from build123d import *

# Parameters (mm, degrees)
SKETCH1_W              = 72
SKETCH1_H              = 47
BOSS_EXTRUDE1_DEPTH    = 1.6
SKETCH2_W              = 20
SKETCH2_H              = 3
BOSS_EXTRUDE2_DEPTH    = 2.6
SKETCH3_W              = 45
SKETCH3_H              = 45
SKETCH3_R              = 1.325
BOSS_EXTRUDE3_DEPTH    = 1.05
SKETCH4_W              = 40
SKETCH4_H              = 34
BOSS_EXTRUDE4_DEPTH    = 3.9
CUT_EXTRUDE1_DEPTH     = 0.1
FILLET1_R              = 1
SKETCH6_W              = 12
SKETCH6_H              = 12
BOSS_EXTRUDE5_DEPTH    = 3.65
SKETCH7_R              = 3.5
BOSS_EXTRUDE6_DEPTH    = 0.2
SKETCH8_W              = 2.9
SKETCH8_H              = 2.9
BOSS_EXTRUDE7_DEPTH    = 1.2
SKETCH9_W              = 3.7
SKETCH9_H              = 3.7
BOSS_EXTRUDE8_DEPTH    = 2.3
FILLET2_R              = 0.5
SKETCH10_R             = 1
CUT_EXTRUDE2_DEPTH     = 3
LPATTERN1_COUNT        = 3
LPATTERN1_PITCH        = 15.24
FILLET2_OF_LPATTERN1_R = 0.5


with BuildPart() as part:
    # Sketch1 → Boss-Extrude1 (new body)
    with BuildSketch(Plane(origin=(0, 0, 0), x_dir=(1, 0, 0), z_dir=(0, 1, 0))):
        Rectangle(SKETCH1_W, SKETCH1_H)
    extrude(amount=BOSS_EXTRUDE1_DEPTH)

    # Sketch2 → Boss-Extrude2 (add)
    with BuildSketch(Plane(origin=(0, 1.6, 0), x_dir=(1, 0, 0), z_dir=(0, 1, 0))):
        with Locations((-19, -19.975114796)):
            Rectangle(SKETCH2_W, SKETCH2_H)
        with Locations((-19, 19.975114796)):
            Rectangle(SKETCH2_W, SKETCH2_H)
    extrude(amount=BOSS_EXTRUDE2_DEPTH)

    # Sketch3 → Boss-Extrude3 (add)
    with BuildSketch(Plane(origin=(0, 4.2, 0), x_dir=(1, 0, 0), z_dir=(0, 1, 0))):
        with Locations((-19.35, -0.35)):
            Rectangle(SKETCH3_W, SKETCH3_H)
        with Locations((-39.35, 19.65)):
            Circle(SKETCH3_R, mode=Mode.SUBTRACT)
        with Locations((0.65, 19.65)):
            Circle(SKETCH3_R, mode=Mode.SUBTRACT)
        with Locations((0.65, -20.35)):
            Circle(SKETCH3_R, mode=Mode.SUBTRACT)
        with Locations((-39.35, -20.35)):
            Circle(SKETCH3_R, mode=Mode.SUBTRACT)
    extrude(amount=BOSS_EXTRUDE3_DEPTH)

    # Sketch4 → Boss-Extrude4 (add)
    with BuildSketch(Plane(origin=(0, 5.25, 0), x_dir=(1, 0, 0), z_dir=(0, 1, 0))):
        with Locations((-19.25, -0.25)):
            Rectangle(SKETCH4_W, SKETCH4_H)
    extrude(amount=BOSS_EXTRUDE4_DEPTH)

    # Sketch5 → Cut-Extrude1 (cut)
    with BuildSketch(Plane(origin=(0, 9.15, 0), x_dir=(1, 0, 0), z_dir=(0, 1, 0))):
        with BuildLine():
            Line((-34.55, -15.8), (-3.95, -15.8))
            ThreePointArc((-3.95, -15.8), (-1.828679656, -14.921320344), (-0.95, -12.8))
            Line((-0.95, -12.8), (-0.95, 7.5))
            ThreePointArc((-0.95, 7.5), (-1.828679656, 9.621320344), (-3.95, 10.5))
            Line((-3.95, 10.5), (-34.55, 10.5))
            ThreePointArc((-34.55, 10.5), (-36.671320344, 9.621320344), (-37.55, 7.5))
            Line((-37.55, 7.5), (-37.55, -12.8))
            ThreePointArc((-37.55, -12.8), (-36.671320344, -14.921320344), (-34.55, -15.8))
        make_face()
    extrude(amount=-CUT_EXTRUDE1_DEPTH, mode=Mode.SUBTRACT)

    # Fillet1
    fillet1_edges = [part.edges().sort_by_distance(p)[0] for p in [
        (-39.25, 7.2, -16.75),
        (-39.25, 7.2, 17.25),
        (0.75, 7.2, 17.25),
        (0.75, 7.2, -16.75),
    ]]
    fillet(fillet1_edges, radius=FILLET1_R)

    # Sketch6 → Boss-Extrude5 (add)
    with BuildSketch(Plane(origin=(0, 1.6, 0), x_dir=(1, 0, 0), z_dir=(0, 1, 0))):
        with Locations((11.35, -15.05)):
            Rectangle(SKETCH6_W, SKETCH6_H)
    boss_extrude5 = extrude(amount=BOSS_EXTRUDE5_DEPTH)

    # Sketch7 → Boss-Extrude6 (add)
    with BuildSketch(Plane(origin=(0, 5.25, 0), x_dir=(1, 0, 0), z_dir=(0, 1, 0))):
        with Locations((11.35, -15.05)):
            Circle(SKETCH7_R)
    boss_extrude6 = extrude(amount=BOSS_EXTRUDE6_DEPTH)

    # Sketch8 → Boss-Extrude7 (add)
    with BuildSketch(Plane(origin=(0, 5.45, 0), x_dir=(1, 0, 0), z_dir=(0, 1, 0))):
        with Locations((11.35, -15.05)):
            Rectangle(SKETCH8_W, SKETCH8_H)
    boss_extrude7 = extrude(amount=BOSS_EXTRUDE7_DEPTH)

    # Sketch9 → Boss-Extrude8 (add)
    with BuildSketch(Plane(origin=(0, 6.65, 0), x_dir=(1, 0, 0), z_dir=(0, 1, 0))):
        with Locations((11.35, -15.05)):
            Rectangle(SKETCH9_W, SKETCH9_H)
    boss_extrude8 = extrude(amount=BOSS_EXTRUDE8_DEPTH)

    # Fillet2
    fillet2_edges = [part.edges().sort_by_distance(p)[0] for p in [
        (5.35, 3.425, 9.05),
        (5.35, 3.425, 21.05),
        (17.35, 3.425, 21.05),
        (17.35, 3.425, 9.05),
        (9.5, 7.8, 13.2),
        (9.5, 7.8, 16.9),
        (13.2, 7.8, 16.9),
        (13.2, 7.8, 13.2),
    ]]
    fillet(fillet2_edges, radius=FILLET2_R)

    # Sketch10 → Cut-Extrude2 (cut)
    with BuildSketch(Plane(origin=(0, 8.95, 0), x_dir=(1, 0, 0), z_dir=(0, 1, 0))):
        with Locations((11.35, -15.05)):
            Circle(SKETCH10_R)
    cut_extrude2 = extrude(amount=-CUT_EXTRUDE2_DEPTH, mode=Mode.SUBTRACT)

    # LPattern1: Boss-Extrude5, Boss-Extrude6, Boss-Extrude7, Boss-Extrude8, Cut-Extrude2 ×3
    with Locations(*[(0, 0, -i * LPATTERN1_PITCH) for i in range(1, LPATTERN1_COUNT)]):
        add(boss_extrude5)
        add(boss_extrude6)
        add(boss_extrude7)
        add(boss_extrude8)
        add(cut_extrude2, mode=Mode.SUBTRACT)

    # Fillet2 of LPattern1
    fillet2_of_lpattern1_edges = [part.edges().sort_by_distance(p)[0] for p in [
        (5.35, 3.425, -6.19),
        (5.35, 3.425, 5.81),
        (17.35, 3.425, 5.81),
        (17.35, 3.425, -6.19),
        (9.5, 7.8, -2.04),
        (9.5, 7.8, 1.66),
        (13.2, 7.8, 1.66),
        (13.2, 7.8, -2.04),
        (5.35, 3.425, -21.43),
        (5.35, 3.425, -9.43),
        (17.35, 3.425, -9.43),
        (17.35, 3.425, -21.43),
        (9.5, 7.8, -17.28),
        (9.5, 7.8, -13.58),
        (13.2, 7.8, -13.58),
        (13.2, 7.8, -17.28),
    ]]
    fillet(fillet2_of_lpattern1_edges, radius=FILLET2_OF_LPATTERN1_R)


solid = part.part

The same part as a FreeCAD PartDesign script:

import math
import FreeCAD as App
import Part
import Sketcher
Q = App.Units.Quantity


def edges_at(feature, points):
    """Names of the edges that pass closest to the given points."""
    edges = feature.Shape.Edges
    near = lambda p: min(range(len(edges)), key=lambda i: edges[i].distToShape(Part.Vertex(*p))[0])
    return sorted({f"Edge{near(p) + 1}" for p in points})

doc = App.newDocument("Part")
body = doc.addObject("PartDesign::Body", "Body")

# Sketch on XZ plane
sketch1 = body.newObject("Sketcher::SketchObject", "Sketch")
sketch1.AttachmentSupport = (doc.getObject("XZ_Plane"), [""])
sketch1.MapMode = "FlatFace"
sketch1.addGeometry([
    Part.LineSegment(App.Vector(-36, -23.5, 0), App.Vector(-36, 23.5, 0)),
    Part.LineSegment(App.Vector(-36, 23.5, 0), App.Vector(36, 23.5, 0)),
    Part.LineSegment(App.Vector(36, 23.5, 0), App.Vector(36, -23.5, 0)),
    Part.LineSegment(App.Vector(36, -23.5, 0), App.Vector(-36, -23.5, 0)),
], False)
sketch1.addConstraint([
    Sketcher.Constraint("Coincident", 0, 2, 1, 1),
    Sketcher.Constraint("Coincident", 1, 2, 2, 1),
    Sketcher.Constraint("Coincident", 2, 2, 3, 1),
    Sketcher.Constraint("Coincident", 3, 2, 0, 1),
    Sketcher.Constraint("Vertical", 0),
    Sketcher.Constraint("Horizontal", 1),
    Sketcher.Constraint("Vertical", 2),
    Sketcher.Constraint("Horizontal", 3),
    Sketcher.Constraint("Symmetric", 0, 2, 2, 2, -1, 1),
    Sketcher.Constraint("DistanceX", 1, 1, 1, 2, Q("72 mm")),
    Sketcher.Constraint("DistanceY", 0, 1, 0, 2, Q("47 mm")),
])
pad1 = body.newObject("PartDesign::Pad", "Pad")
pad1.Profile = sketch1
pad1.Length = 1.6
pad1.Reversed = True

# Sketch on XZ plane
sketch2 = body.newObject("Sketcher::SketchObject", "Sketch001")
sketch2.AttachmentSupport = (doc.getObject("XZ_Plane"), [""])
sketch2.MapMode = "FlatFace"
sketch2.AttachmentOffset = App.Placement(App.Vector(0, 0, -1.6), App.Rotation())
sketch2.addGeometry([
    Part.LineSegment(App.Vector(-29, 18.475115, 0), App.Vector(-29, 21.475115, 0)),  # 0
    Part.LineSegment(App.Vector(-29, 21.475115, 0), App.Vector(-9, 21.475115, 0)),  # 1
    Part.LineSegment(App.Vector(-9, 21.475115, 0), App.Vector(-9, 18.475115, 0)),  # 2
    Part.LineSegment(App.Vector(-9, 18.475115, 0), App.Vector(-29, 18.475115, 0)),  # 3
    Part.LineSegment(App.Vector(-29, -21.475115, 0), App.Vector(-29, -18.475115, 0)),  # 4
    Part.LineSegment(App.Vector(-29, -18.475115, 0), App.Vector(-9, -18.475115, 0)),  # 5
    Part.LineSegment(App.Vector(-9, -18.475115, 0), App.Vector(-9, -21.475115, 0)),  # 6
    Part.LineSegment(App.Vector(-9, -21.475115, 0), App.Vector(-29, -21.475115, 0)),  # 7
], False)
sketch2.addConstraint([
    Sketcher.Constraint("Coincident", 0, 2, 1, 1),
    Sketcher.Constraint("Coincident", 1, 2, 2, 1),
    Sketcher.Constraint("Coincident", 2, 2, 3, 1),
    Sketcher.Constraint("Coincident", 3, 2, 0, 1),
    Sketcher.Constraint("Coincident", 4, 2, 5, 1),
    Sketcher.Constraint("Coincident", 5, 2, 6, 1),
    Sketcher.Constraint("Coincident", 6, 2, 7, 1),
    Sketcher.Constraint("Coincident", 7, 2, 4, 1),
    Sketcher.Constraint("Vertical", 0),
    Sketcher.Constraint("Horizontal", 1),
    Sketcher.Constraint("Vertical", 2),
    Sketcher.Constraint("Horizontal", 3),
    Sketcher.Constraint("Vertical", 4),
    Sketcher.Constraint("Horizontal", 5),
    Sketcher.Constraint("Vertical", 6),
    Sketcher.Constraint("Horizontal", 7),
    Sketcher.Constraint("Symmetric", 3, 2, 4, 2, -1),
    Sketcher.Constraint("Symmetric", 1, 2, 6, 2, -1),
    Sketcher.Constraint("DistanceX", 1, 1, 1, 2, Q("20 mm")),
    Sketcher.Constraint("DistanceY", 0, 1, 0, 2, Q("3 mm")),
    Sketcher.Constraint("DistanceX", 0, 2, -1, 1, Q("29 mm")),
    Sketcher.Constraint("DistanceY", 4, 2, 3, 2, Q("36.95023 mm")),
])
pad2 = body.newObject("PartDesign::Pad", "Pad001")
pad2.Profile = sketch2
pad2.Length = 2.6
pad2.Reversed = True

# Sketch on XZ plane
sketch3 = body.newObject("Sketcher::SketchObject", "Sketch002")
sketch3.AttachmentSupport = (doc.getObject("XZ_Plane"), [""])
sketch3.MapMode = "FlatFace"
sketch3.AttachmentOffset = App.Placement(App.Vector(0, 0, -4.2), App.Rotation())
sketch3.addGeometry([
    Part.LineSegment(App.Vector(-41.85, -22.15, 0), App.Vector(-41.85, 22.85, 0)),  # 0
    Part.LineSegment(App.Vector(-41.85, 22.85, 0), App.Vector(3.15, 22.85, 0)),  # 1
    Part.LineSegment(App.Vector(3.15, 22.85, 0), App.Vector(3.15, -22.15, 0)),  # 2
    Part.LineSegment(App.Vector(3.15, -22.15, 0), App.Vector(-41.85, -22.15, 0)),  # 3
    Part.Circle(App.Vector(-39.35, 20.35, 0), App.Vector(0, 0, 1), 1.325),  # 4
    Part.Circle(App.Vector(0.65, 20.35, 0), App.Vector(0, 0, 1), 1.325),  # 5
    Part.Circle(App.Vector(-39.35, -19.65, 0), App.Vector(0, 0, 1), 1.325),  # 6
    Part.Circle(App.Vector(0.65, -19.65, 0), App.Vector(0, 0, 1), 1.325),  # 7
], False)
sketch3.addConstraint([
    Sketcher.Constraint("Coincident", 0, 2, 1, 1),
    Sketcher.Constraint("Coincident", 1, 2, 2, 1),
    Sketcher.Constraint("Coincident", 2, 2, 3, 1),
    Sketcher.Constraint("Coincident", 3, 2, 0, 1),
    Sketcher.Constraint("Vertical", 0),
    Sketcher.Constraint("Horizontal", 1),
    Sketcher.Constraint("Vertical", 2),
    Sketcher.Constraint("Horizontal", 3),
    Sketcher.Constraint("Equal", 4, 5),
    Sketcher.Constraint("Equal", 5, 6),
    Sketcher.Constraint("Equal", 6, 7),
    Sketcher.Constraint("Horizontal", 4, 3, 5, 3),
    Sketcher.Constraint("Horizontal", 6, 3, 7, 3),
    Sketcher.Constraint("Vertical", 4, 3, 6, 3),
    Sketcher.Constraint("Vertical", 5, 3, 7, 3),
    Sketcher.Constraint("Equal", 3, 0),
    Sketcher.Constraint("Diameter", 4, Q("2.65 mm")),
    Sketcher.Constraint("DistanceX", 1, 1, 1, 2, Q("45 mm")),
    Sketcher.Constraint("DistanceX", 4, 3, 5, 3, Q("40 mm")),
    Sketcher.Constraint("DistanceY", 6, 3, 4, 3, Q("40 mm")),
    Sketcher.Constraint("DistanceX", 0, 2, 4, 3, Q("2.5 mm")),
    Sketcher.Constraint("DistanceY", 4, 3, 0, 2, Q("2.5 mm")),
    Sketcher.Constraint("DistanceX", 4, 3, -1, 1, Q("39.35 mm")),
    Sketcher.Constraint("DistanceY", -1, 1, 4, 3, Q("20.35 mm")),
])
pad3 = body.newObject("PartDesign::Pad", "Pad002")
pad3.Profile = sketch3
pad3.Length = 1.05
pad3.Reversed = True

# Sketch on XZ plane
sketch4 = body.newObject("Sketcher::SketchObject", "Sketch003")
sketch4.AttachmentSupport = (doc.getObject("XZ_Plane"), [""])
sketch4.MapMode = "FlatFace"
sketch4.AttachmentOffset = App.Placement(App.Vector(0, 0, -5.25), App.Rotation())
sketch4.addGeometry([
    Part.LineSegment(App.Vector(-39.25, -16.75, 0), App.Vector(-39.25, 17.25, 0)),
    Part.LineSegment(App.Vector(-39.25, 17.25, 0), App.Vector(0.75, 17.25, 0)),
    Part.LineSegment(App.Vector(0.75, 17.25, 0), App.Vector(0.75, -16.75, 0)),
    Part.LineSegment(App.Vector(0.75, -16.75, 0), App.Vector(-39.25, -16.75, 0)),
], False)
sketch4.addConstraint([
    Sketcher.Constraint("Coincident", 0, 2, 1, 1),
    Sketcher.Constraint("Coincident", 1, 2, 2, 1),
    Sketcher.Constraint("Coincident", 2, 2, 3, 1),
    Sketcher.Constraint("Coincident", 3, 2, 0, 1),
    Sketcher.Constraint("Vertical", 0),
    Sketcher.Constraint("Horizontal", 1),
    Sketcher.Constraint("Vertical", 2),
    Sketcher.Constraint("Horizontal", 3),
    Sketcher.Constraint("DistanceX", 1, 1, 1, 2, Q("40 mm")),
    Sketcher.Constraint("DistanceY", 0, 1, 0, 2, Q("34 mm")),
    Sketcher.Constraint("DistanceX", 0, 2, -1, 1, Q("39.25 mm")),
    Sketcher.Constraint("DistanceY", -1, 1, 0, 2, Q("17.25 mm")),
])
pad4 = body.newObject("PartDesign::Pad", "Pad003")
pad4.Profile = sketch4
pad4.Length = 3.9
pad4.Reversed = True

# Sketch on XZ plane
sketch5 = body.newObject("Sketcher::SketchObject", "Sketch004")
sketch5.AttachmentSupport = (doc.getObject("XZ_Plane"), [""])
sketch5.MapMode = "FlatFace"
sketch5.AttachmentOffset = App.Placement(App.Vector(0, 0, -9.15), App.Rotation())
sketch5.addGeometry([
    Part.LineSegment(App.Vector(-34.55, 15.8, 0), App.Vector(-3.95, 15.8, 0)),  # 0
    Part.ArcOfCircle(Part.Circle(App.Vector(-3.95, 12.8, 0), App.Vector(0, 0, 1), 3), math.radians(0), math.radians(90)),  # 1
    Part.LineSegment(App.Vector(-0.95, 12.8, 0), App.Vector(-0.95, -7.5, 0)),  # 2
    Part.ArcOfCircle(Part.Circle(App.Vector(-3.95, -7.5, 0), App.Vector(0, 0, 1), 3), math.radians(-90), math.radians(0)),  # 3
    Part.LineSegment(App.Vector(-3.95, -10.5, 0), App.Vector(-34.55, -10.5, 0)),  # 4
    Part.ArcOfCircle(Part.Circle(App.Vector(-34.55, -7.5, 0), App.Vector(0, 0, 1), 3), math.radians(180), math.radians(270)),  # 5
    Part.LineSegment(App.Vector(-37.55, -7.5, 0), App.Vector(-37.55, 12.8, 0)),  # 6
    Part.ArcOfCircle(Part.Circle(App.Vector(-34.55, 12.8, 0), App.Vector(0, 0, 1), 3), math.radians(90), math.radians(180)),  # 7
], False)
sketch5.addConstraint([
    Sketcher.Constraint("Tangent", 0, 2, 1, 2),
    Sketcher.Constraint("Tangent", 1, 1, 2, 1),
    Sketcher.Constraint("Tangent", 2, 2, 3, 2),
    Sketcher.Constraint("Tangent", 3, 1, 4, 1),
    Sketcher.Constraint("Tangent", 4, 2, 5, 2),
    Sketcher.Constraint("Tangent", 5, 1, 6, 1),
    Sketcher.Constraint("Tangent", 6, 2, 7, 2),
    Sketcher.Constraint("Tangent", 7, 1, 0, 1),
    Sketcher.Constraint("Horizontal", 0),
    Sketcher.Constraint("Vertical", 2),
    Sketcher.Constraint("Horizontal", 4),
    Sketcher.Constraint("Vertical", 6),
    Sketcher.Constraint("Equal", 1, 3),
    Sketcher.Constraint("Equal", 3, 5),
    Sketcher.Constraint("Equal", 5, 7),
    Sketcher.Constraint("Radius", 1, Q("3 mm")),
    Sketcher.Constraint("DistanceX", 0, 1, 0, 2, Q("30.6 mm")),
    Sketcher.Constraint("DistanceY", 2, 2, 2, 1, Q("20.3 mm")),
    Sketcher.Constraint("DistanceY", -1, 1, 1, 3, Q("12.8 mm")),
    Sketcher.Constraint("DistanceX", 1, 3, -1, 1, Q("3.95 mm")),
])
pocket1 = body.newObject("PartDesign::Pocket", "Pocket")
pocket1.Profile = sketch5
pocket1.Length = 0.1
pocket1.Reversed = True
doc.recompute()

fillet = body.newObject("PartDesign::Fillet", "Fillet")
fillet.Base = (pocket1, edges_at(pocket1, [
    (-39.25, 7.2, -16.75),
    (-39.25, 7.2, 17.25),
    (0.75, 7.2, 17.25),
    (0.75, 7.2, -16.75),
]))
fillet.Radius = 1

# Sketch on XZ plane
sketch6 = body.newObject("Sketcher::SketchObject", "Sketch005")
sketch6.AttachmentSupport = (doc.getObject("XZ_Plane"), [""])
sketch6.MapMode = "FlatFace"
sketch6.AttachmentOffset = App.Placement(App.Vector(0, 0, -1.6), App.Rotation())
sketch6.addGeometry([
    Part.LineSegment(App.Vector(5.35, 9.05, 0), App.Vector(5.35, 21.05, 0)),
    Part.LineSegment(App.Vector(5.35, 21.05, 0), App.Vector(17.35, 21.05, 0)),
    Part.LineSegment(App.Vector(17.35, 21.05, 0), App.Vector(17.35, 9.05, 0)),
    Part.LineSegment(App.Vector(17.35, 9.05, 0), App.Vector(5.35, 9.05, 0)),
], False)
sketch6.addConstraint([
    Sketcher.Constraint("Coincident", 0, 2, 1, 1),
    Sketcher.Constraint("Coincident", 1, 2, 2, 1),
    Sketcher.Constraint("Coincident", 2, 2, 3, 1),
    Sketcher.Constraint("Coincident", 3, 2, 0, 1),
    Sketcher.Constraint("Vertical", 0),
    Sketcher.Constraint("Horizontal", 1),
    Sketcher.Constraint("Vertical", 2),
    Sketcher.Constraint("Horizontal", 3),
    Sketcher.Constraint("Equal", 3, 0),
    Sketcher.Constraint("DistanceX", 1, 1, 1, 2, Q("12 mm")),
    Sketcher.Constraint("DistanceX", -1, 1, 0, 2, Q("5.35 mm")),
    Sketcher.Constraint("DistanceY", -1, 1, 0, 2, Q("21.05 mm")),
])
pad5 = body.newObject("PartDesign::Pad", "Pad004")
pad5.Profile = sketch6
pad5.Length = 3.65
pad5.Reversed = True

# Sketch on XZ plane
sketch7 = body.newObject("Sketcher::SketchObject", "Sketch006")
sketch7.AttachmentSupport = (doc.getObject("XZ_Plane"), [""])
sketch7.MapMode = "FlatFace"
sketch7.AttachmentOffset = App.Placement(App.Vector(0, 0, -5.25), App.Rotation())
sketch7.addGeometry(Part.Circle(App.Vector(11.35, 15.05, 0), App.Vector(0, 0, 1), 3.5), False)
sketch7.addConstraint([
    Sketcher.Constraint("Diameter", 0, Q("7 mm")),
    Sketcher.Constraint("DistanceX", -1, 1, 0, 3, Q("11.35 mm")),
    Sketcher.Constraint("DistanceY", -1, 1, 0, 3, Q("15.05 mm")),
])
pad6 = body.newObject("PartDesign::Pad", "Pad005")
pad6.Profile = sketch7
pad6.Length = 0.2
pad6.Reversed = True

# Sketch on XZ plane
sketch8 = body.newObject("Sketcher::SketchObject", "Sketch007")
sketch8.AttachmentSupport = (doc.getObject("XZ_Plane"), [""])
sketch8.MapMode = "FlatFace"
sketch8.AttachmentOffset = App.Placement(App.Vector(0, 0, -5.45), App.Rotation())
sketch8.addGeometry([
    Part.LineSegment(App.Vector(9.9, 13.6, 0), App.Vector(9.9, 16.5, 0)),
    Part.LineSegment(App.Vector(9.9, 16.5, 0), App.Vector(12.8, 16.5, 0)),
    Part.LineSegment(App.Vector(12.8, 16.5, 0), App.Vector(12.8, 13.6, 0)),
    Part.LineSegment(App.Vector(12.8, 13.6, 0), App.Vector(9.9, 13.6, 0)),
], False)
sketch8.addConstraint([
    Sketcher.Constraint("Coincident", 0, 2, 1, 1),
    Sketcher.Constraint("Coincident", 1, 2, 2, 1),
    Sketcher.Constraint("Coincident", 2, 2, 3, 1),
    Sketcher.Constraint("Coincident", 3, 2, 0, 1),
    Sketcher.Constraint("Vertical", 0),
    Sketcher.Constraint("Horizontal", 1),
    Sketcher.Constraint("Vertical", 2),
    Sketcher.Constraint("Horizontal", 3),
    Sketcher.Constraint("Equal", 3, 0),
    Sketcher.Constraint("DistanceX", 1, 1, 1, 2, Q("2.9 mm")),
    Sketcher.Constraint("DistanceX", -1, 1, 0, 2, Q("9.9 mm")),
    Sketcher.Constraint("DistanceY", -1, 1, 0, 2, Q("16.5 mm")),
])
pad7 = body.newObject("PartDesign::Pad", "Pad006")
pad7.Profile = sketch8
pad7.Length = 1.2
pad7.Reversed = True

# Sketch on XZ plane
sketch9 = body.newObject("Sketcher::SketchObject", "Sketch008")
sketch9.AttachmentSupport = (doc.getObject("XZ_Plane"), [""])
sketch9.MapMode = "FlatFace"
sketch9.AttachmentOffset = App.Placement(App.Vector(0, 0, -6.65), App.Rotation())
sketch9.addGeometry([
    Part.LineSegment(App.Vector(9.5, 13.2, 0), App.Vector(9.5, 16.9, 0)),
    Part.LineSegment(App.Vector(9.5, 16.9, 0), App.Vector(13.2, 16.9, 0)),
    Part.LineSegment(App.Vector(13.2, 16.9, 0), App.Vector(13.2, 13.2, 0)),
    Part.LineSegment(App.Vector(13.2, 13.2, 0), App.Vector(9.5, 13.2, 0)),
], False)
sketch9.addConstraint([
    Sketcher.Constraint("Coincident", 0, 2, 1, 1),
    Sketcher.Constraint("Coincident", 1, 2, 2, 1),
    Sketcher.Constraint("Coincident", 2, 2, 3, 1),
    Sketcher.Constraint("Coincident", 3, 2, 0, 1),
    Sketcher.Constraint("Vertical", 0),
    Sketcher.Constraint("Horizontal", 1),
    Sketcher.Constraint("Vertical", 2),
    Sketcher.Constraint("Horizontal", 3),
    Sketcher.Constraint("Equal", 3, 0),
    Sketcher.Constraint("DistanceX", 1, 1, 1, 2, Q("3.7 mm")),
    Sketcher.Constraint("DistanceX", -1, 1, 0, 2, Q("9.5 mm")),
    Sketcher.Constraint("DistanceY", -1, 1, 0, 2, Q("16.9 mm")),
])
pad8 = body.newObject("PartDesign::Pad", "Pad007")
pad8.Profile = sketch9
pad8.Length = 2.3
pad8.Reversed = True
doc.recompute()

fillet2 = body.newObject("PartDesign::Fillet", "Fillet001")
fillet2.Base = (pad8, edges_at(pad8, [
    (5.35, 3.425, 9.05),
    (5.35, 3.425, 21.05),
    (17.35, 3.425, 21.05),
    (17.35, 3.425, 9.05),
    (9.5, 7.8, 13.2),
    (9.5, 7.8, 16.9),
    (13.2, 7.8, 16.9),
    (13.2, 7.8, 13.2),
]))
fillet2.Radius = 0.5

# Sketch on XZ plane
sketch10 = body.newObject("Sketcher::SketchObject", "Sketch009")
sketch10.AttachmentSupport = (doc.getObject("XZ_Plane"), [""])
sketch10.MapMode = "FlatFace"
sketch10.AttachmentOffset = App.Placement(App.Vector(0, 0, -8.95), App.Rotation())
sketch10.addGeometry(Part.Circle(App.Vector(11.35, 15.05, 0), App.Vector(0, 0, 1), 1), False)
sketch10.addConstraint([
    Sketcher.Constraint("Diameter", 0, Q("2 mm")),
    Sketcher.Constraint("DistanceX", -1, 1, 0, 3, Q("11.35 mm")),
    Sketcher.Constraint("DistanceY", -1, 1, 0, 3, Q("15.05 mm")),
])
pocket2 = body.newObject("PartDesign::Pocket", "Pocket001")
pocket2.Profile = sketch10
pocket2.Length = 3
pocket2.Reversed = True
doc.recompute()

linearpattern = body.newObject("PartDesign::LinearPattern", "LinearPattern")
linearpattern.Originals = [pad5, pad6, pad7, pad8, pocket2]
linearpattern.Direction = (doc.getObject("Z_Axis"), [""])
linearpattern.Mode = "offset"
linearpattern.Offset = 15.24
linearpattern.Occurrences = 3
linearpattern.Reversed = True
body.Tip = linearpattern
doc.recompute()

fillet3 = body.newObject("PartDesign::Fillet", "Fillet002")
fillet3.Base = (linearpattern, edges_at(linearpattern, [
    (5.35, 3.425, -6.19),
    (5.35, 3.425, 5.81),
    (17.35, 3.425, 5.81),
    (17.35, 3.425, -6.19),
    (9.5, 7.8, -2.04),
    (9.5, 7.8, 1.66),
    (13.2, 7.8, 1.66),
    (13.2, 7.8, -2.04),
    (5.35, 3.425, -21.43),
    (5.35, 3.425, -9.43),
    (17.35, 3.425, -9.43),
    (17.35, 3.425, -21.43),
    (9.5, 7.8, -17.28),
    (9.5, 7.8, -13.58),
    (13.2, 7.8, -13.58),
    (13.2, 7.8, -17.28),
]))
fillet3.Radius = 0.5

doc.recompute()
